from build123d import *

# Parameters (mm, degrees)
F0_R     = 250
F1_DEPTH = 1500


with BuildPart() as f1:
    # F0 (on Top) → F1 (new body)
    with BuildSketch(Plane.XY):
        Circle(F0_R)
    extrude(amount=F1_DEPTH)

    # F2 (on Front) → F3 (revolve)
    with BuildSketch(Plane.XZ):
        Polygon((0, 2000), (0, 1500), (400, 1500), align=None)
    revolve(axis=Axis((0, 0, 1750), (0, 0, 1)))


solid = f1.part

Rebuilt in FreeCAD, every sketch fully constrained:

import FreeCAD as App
import Part
import Sketcher

V = App.Vector
Q = App.Units.Quantity

doc = App.newDocument("Part")
params = doc.addObject("Spreadsheet::Sheet", "Params")
for row, (alias, value) in enumerate([
    ("sketch1_diameter", "500 mm"),
    ("pad1_length", "1500 mm"),
    ("sketch2_width", "400 mm"),
    ("sketch2_height", "500 mm"),
    ("revolution_angle", "360 deg"),
], start=1):
    params.set(f"A{row}", alias)
    params.set(f"B{row}", "=" + value)
    params.setAlias(f"B{row}", alias)

body = doc.addObject("PartDesign::Body", "Body")

sketch1 = body.newObject("Sketcher::SketchObject", "Sketch")
sketch1.AttachmentSupport = (doc.getObject("XY_Plane"), [""])
sketch1.MapMode = "FlatFace"
sketch1.addGeometry(Part.Circle(V(0, 0, 0), V(0, 0, 1), 250), False)
sketch1.addConstraint([
    Sketcher.Constraint("Coincident", 0, 3, -1, 1),
    Sketcher.Constraint("Diameter", 0, Q("500 mm")),
])
sketch1.setExpression("Constraints[1]", "Params.sketch1_diameter")
pad1 = body.newObject("PartDesign::Pad", "Pad")
pad1.Profile = sketch1
pad1.setExpression("Length", "Params.pad1_length")

sketch2 = body.newObject("Sketcher::SketchObject", "Sketch001")
sketch2.AttachmentSupport = (doc.getObject("XZ_Plane"), [""])
sketch2.MapMode = "FlatFace"
sketch2.addGeometry([
    Part.LineSegment(V(0, 2000, 0), V(0, 1500, 0)),
    Part.LineSegment(V(0, 1500, 0), V(400, 1500, 0)),
    Part.LineSegment(V(400, 1500, 0), V(0, 2000, 0)),
], False)
sketch2.addConstraint([
    Sketcher.Constraint("Coincident", 0, 2, 1, 1),
    Sketcher.Constraint("Coincident", 1, 2, 2, 1),
    Sketcher.Constraint("Coincident", 2, 2, 0, 1),
    Sketcher.Constraint("Vertical", 0),
    Sketcher.Constraint("Horizontal", 1),
    Sketcher.Constraint("PointOnObject", 0, 2, -2),
    Sketcher.Constraint("DistanceX", 1, 1, 1, 2, Q("400 mm")),
    Sketcher.Constraint("DistanceY", 0, 2, 0, 1, Q("500 mm")),
    Sketcher.Constraint("DistanceY", -1, 1, 0, 2, Q("1500 mm")),
])
sketch2.setExpression("Constraints[6]", "Params.sketch2_width")
sketch2.setExpression("Constraints[7]", "Params.sketch2_height")
revolution = body.newObject("PartDesign::Revolution", "Revolution")
revolution.Profile = sketch2
revolution.ReferenceAxis = (sketch2, ["V_Axis"])
revolution.setExpression("Angle", "Params.revolution_angle")

doc.recompute()
